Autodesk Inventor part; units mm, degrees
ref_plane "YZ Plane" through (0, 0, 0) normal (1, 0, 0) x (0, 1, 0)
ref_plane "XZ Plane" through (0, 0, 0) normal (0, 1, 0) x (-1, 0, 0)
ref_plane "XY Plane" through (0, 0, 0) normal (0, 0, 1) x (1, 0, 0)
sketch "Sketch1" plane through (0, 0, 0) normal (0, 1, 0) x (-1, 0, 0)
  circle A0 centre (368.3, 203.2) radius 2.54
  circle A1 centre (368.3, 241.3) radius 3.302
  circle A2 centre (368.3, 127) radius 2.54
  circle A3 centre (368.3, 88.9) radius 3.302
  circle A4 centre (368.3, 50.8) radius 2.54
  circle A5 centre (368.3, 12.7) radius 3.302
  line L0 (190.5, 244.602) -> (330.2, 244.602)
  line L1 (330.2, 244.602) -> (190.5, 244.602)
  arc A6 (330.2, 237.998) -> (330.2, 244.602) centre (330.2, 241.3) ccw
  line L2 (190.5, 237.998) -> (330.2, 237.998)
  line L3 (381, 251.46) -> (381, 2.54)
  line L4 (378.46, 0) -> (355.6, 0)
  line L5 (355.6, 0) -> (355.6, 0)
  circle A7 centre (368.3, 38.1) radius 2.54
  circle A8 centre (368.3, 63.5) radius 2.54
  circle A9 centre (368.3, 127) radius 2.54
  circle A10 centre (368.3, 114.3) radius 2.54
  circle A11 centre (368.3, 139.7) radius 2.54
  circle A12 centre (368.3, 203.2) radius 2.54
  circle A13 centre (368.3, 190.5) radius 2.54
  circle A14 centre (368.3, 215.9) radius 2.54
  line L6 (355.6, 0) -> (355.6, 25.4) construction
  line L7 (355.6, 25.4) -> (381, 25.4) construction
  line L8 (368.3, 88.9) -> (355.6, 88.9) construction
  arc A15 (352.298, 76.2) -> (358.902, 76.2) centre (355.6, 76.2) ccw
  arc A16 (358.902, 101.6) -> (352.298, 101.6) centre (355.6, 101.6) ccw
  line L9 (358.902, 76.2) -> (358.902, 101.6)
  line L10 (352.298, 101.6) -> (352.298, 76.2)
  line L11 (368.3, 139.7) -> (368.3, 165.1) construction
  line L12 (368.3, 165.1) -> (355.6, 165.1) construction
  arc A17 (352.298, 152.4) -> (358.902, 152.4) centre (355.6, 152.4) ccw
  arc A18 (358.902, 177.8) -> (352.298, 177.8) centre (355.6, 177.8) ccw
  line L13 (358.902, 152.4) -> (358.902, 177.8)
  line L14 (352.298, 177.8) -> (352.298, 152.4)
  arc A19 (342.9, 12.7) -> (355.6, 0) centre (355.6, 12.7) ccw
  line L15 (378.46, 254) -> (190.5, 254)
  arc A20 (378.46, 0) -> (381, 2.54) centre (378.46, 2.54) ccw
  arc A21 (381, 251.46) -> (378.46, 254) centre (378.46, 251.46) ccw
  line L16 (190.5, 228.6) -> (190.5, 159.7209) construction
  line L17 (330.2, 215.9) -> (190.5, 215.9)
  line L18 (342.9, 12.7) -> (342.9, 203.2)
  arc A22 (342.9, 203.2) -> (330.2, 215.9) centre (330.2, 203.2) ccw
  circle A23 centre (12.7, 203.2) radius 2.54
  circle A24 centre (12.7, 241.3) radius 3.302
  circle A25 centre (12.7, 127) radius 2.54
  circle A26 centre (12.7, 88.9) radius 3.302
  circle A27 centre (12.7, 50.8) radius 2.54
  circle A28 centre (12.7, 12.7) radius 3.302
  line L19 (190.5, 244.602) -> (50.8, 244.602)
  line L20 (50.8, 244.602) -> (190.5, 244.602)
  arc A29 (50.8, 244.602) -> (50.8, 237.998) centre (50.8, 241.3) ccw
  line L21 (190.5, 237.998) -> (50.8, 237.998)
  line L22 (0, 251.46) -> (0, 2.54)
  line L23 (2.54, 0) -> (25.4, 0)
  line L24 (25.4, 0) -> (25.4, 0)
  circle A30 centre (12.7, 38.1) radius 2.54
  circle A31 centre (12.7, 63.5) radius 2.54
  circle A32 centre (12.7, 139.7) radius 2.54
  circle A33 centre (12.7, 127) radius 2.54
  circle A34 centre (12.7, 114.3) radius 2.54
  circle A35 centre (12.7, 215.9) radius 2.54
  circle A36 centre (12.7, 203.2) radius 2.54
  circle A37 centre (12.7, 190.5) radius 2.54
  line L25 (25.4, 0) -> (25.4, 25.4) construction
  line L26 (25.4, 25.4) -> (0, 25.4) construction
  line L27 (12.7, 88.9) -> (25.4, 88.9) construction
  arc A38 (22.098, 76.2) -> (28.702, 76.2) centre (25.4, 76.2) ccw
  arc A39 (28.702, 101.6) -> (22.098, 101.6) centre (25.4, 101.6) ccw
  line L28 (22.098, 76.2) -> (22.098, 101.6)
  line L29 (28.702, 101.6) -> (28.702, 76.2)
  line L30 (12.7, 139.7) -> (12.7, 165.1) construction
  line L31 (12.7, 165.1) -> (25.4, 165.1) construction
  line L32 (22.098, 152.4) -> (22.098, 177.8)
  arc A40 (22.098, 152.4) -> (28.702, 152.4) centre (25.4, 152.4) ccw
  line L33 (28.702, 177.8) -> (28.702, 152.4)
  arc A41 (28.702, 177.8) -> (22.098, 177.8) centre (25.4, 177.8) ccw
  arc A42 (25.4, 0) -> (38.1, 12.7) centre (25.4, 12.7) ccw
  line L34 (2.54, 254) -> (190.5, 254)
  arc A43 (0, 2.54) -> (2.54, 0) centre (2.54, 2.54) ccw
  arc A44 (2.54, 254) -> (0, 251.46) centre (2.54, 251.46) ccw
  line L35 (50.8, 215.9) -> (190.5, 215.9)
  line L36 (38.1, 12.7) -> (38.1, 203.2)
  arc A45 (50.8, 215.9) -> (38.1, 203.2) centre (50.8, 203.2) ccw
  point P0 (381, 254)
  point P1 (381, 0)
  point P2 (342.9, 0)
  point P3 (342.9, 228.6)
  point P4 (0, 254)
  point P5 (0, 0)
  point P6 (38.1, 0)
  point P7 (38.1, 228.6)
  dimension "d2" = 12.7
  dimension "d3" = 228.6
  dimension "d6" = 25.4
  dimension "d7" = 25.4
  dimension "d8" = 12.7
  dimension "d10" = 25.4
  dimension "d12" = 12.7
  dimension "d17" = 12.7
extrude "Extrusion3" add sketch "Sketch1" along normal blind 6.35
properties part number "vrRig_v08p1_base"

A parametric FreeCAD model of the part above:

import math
import FreeCAD as App
import Part
import Sketcher
from FreeCAD import Vector
Q = App.Units.Quantity

doc = App.newDocument("Part")
params = doc.addObject("Spreadsheet::Sheet", "Params")
for row, (alias, value) in enumerate([
    ("sketch1_radius", "0.5 in"),
    ("sketch1_height", "1 in"),
    ("sketch1_diameter", "0.2 in"),
    ("sketch1_diameter2", "0.26 in"),
    ("sketch1_width", "11 in"),
    ("pad1_length", "0.25 in"),
], start=1):
    params.set(f"A{row}", alias)
    params.set(f"B{row}", "=" + value)
    params.setAlias(f"B{row}", alias)

body = doc.addObject("PartDesign::Body", "Body")

sketch1 = doc.addObject("Sketcher::SketchObject", "Sketch")
body.addObject(sketch1)
sketch1.AttachmentSupport = (doc.XZ_Plane, [""])
sketch1.MapMode = "FlatFace"
sketch1.addGeometry(Part.LineSegment(Vector(-381, 2.5, 0), Vector(-381, 251.5, 0)), False)
sketch1.addGeometry(Part.ArcOfCircle(Part.Circle(Vector(-378.5, 251.5, 0), Vector(0, 0, 1), 2.5), math.radians(90), math.radians(180)), False)
sketch1.addGeometry(Part.LineSegment(Vector(-378.5, 254, 0), Vector(-2.5, 254, 0)), False)
sketch1.addGeometry(Part.ArcOfCircle(Part.Circle(Vector(-2.5, 251.5, 0), Vector(0, 0, 1), 2.5), math.radians(0), math.radians(90)), False)
sketch1.addGeometry(Part.LineSegment(Vector(0, 251.5, 0), Vector(0, 2.5, 0)), False)
sketch1.addGeometry(Part.ArcOfCircle(Part.Circle(Vector(-2.5, 2.5, 0), Vector(0, 0, 1), 2.5), math.radians(-90), math.radians(0)), False)
sketch1.addGeometry(Part.LineSegment(Vector(-2.5, 0, 0), Vector(-25.4, 0, 0)), False)
sketch1.addGeometry(Part.ArcOfCircle(Part.Circle(Vector(-25.4, 12.7, 0), Vector(0, 0, 1), 12.7), math.radians(180), math.radians(270)), False)
sketch1.addGeometry(Part.LineSegment(Vector(-38.1, 12.7, 0), Vector(-38.1, 203.2, 0)), False)
sketch1.addGeometry(Part.ArcOfCircle(Part.Circle(Vector(-50.8, 203.2, 0), Vector(0, 0, 1), 12.7), math.radians(0), math.radians(90)), False)
sketch1.addGeometry(Part.LineSegment(Vector(-50.8, 215.9, 0), Vector(-330.2, 215.9, 0)), False)
sketch1.addGeometry(Part.ArcOfCircle(Part.Circle(Vector(-330.2, 203.2, 0), Vector(0, 0, 1), 12.7), math.radians(90), math.radians(180)), False)
sketch1.addGeometry(Part.LineSegment(Vector(-342.9, 203.2, 0), Vector(-342.9, 12.7, 0)), False)
sketch1.addGeometry(Part.ArcOfCircle(Part.Circle(Vector(-355.6, 12.7, 0), Vector(0, 0, 1), 12.7), math.radians(-90), math.radians(0)), False)
sketch1.addGeometry(Part.LineSegment(Vector(-355.6, 0, 0), Vector(-378.5, 0, 0)), False)
sketch1.addGeometry(Part.ArcOfCircle(Part.Circle(Vector(-378.5, 2.5, 0), Vector(0, 0, 1), 2.5), math.radians(180), math.radians(270)), False)
sketch1.addGeometry(Part.Circle(Vector(-12.7, 12.7, 0), Vector(0, 0, 1), 3.3), False)
sketch1.addGeometry(Part.Circle(Vector(-12.7, 38.1, 0), Vector(0, 0, 1), 2.5), False)
sketch1.addGeometry(Part.Circle(Vector(-12.7, 50.8, 0), Vector(0, 0, 1), 2.5), False)
sketch1.addGeometry(Part.Circle(Vector(-12.7, 63.5, 0), Vector(0, 0, 1), 2.5), False)
sketch1.addGeometry(Part.Circle(Vector(-12.7, 88.9, 0), Vector(0, 0, 1), 3.3), False)
sketch1.addGeometry(Part.ArcOfCircle(Part.Circle(Vector(-25.4, 76.2, 0), Vector(0, 0, 1), 3.3), math.radians(180), math.radians(360)), False)
sketch1.addGeometry(Part.LineSegment(Vector(-22.1, 76.2, 0), Vector(-22.1, 101.6, 0)), False)
sketch1.addGeometry(Part.ArcOfCircle(Part.Circle(Vector(-25.4, 101.6, 0), Vector(0, 0, 1), 3.3), math.radians(0), math.radians(180)), False)
sketch1.addGeometry(Part.LineSegment(Vector(-28.7, 101.6, 0), Vector(-28.7, 76.2, 0)), False)
sketch1.addGeometry(Part.Circle(Vector(-12.7, 114.3, 0), Vector(0, 0, 1), 2.5), False)
sketch1.addGeometry(Part.Circle(Vector(-368.3, 12.7, 0), Vector(0, 0, 1), 3.3), False)
sketch1.addGeometry(Part.Circle(Vector(-368.3, 38.1, 0), Vector(0, 0, 1), 2.5), False)
sketch1.addGeometry(Part.Circle(Vector(-368.3, 50.8, 0), Vector(0, 0, 1), 2.5), False)
sketch1.addGeometry(Part.Circle(Vector(-368.3, 63.5, 0), Vector(0, 0, 1), 2.5), False)
sketch1.addGeometry(Part.ArcOfCircle(Part.Circle(Vector(-355.6, 76.2, 0), Vector(0, 0, 1), 3.3), math.radians(180), math.radians(360)), False)
sketch1.addGeometry(Part.LineSegment(Vector(-352.3, 76.2, 0), Vector(-352.3, 101.6, 0)), False)
sketch1.addGeometry(Part.ArcOfCircle(Part.Circle(Vector(-355.6, 101.6, 0), Vector(0, 0, 1), 3.3), math.radians(0), math.radians(180)), False)
sketch1.addGeometry(Part.LineSegment(Vector(-358.9, 101.6, 0), Vector(-358.9, 76.2, 0)), False)
sketch1.addGeometry(Part.Circle(Vector(-368.3, 88.9, 0), Vector(0, 0, 1), 3.3), False)
sketch1.addGeometry(Part.Circle(Vector(-368.3, 114.3, 0), Vector(0, 0, 1), 2.5), False)
sketch1.addGeometry(Part.Circle(Vector(-12.7, 127, 0), Vector(0, 0, 1), 2.5), False)
sketch1.addGeometry(Part.Circle(Vector(-12.7, 139.7, 0), Vector(0, 0, 1), 2.5), False)
sketch1.addGeometry(Part.ArcOfCircle(Part.Circle(Vector(-25.4, 152.4, 0), Vector(0, 0, 1), 3.3), math.radians(180), math.radians(360)), False)
sketch1.addGeometry(Part.LineSegment(Vector(-22.1, 152.4, 0), Vector(-22.1, 177.8, 0)), False)
sketch1.addGeometry(Part.ArcOfCircle(Part.Circle(Vector(-25.4, 177.8, 0), Vector(0, 0, 1), 3.3), math.radians(0), math.radians(180)), False)
sketch1.addGeometry(Part.LineSegment(Vector(-28.7, 177.8, 0), Vector(-28.7, 152.4, 0)), False)
sketch1.addGeometry(Part.Circle(Vector(-12.7, 190.5, 0), Vector(0, 0, 1), 2.5), False)
sketch1.addGeometry(Part.Circle(Vector(-12.7, 203.2, 0), Vector(0, 0, 1), 2.5), False)
sketch1.addGeometry(Part.Circle(Vector(-12.7, 215.9, 0), Vector(0, 0, 1), 2.5), False)
sketch1.addGeometry(Part.Circle(Vector(-12.7, 241.3, 0), Vector(0, 0, 1), 3.3), False)
sketch1.addGeometry(Part.Circle(Vector(-368.3, 127, 0), Vector(0, 0, 1), 2.5), False)
sketch1.addGeometry(Part.Circle(Vector(-368.3, 139.7, 0), Vector(0, 0, 1), 2.5), False)
sketch1.addGeometry(Part.ArcOfCircle(Part.Circle(Vector(-355.6, 152.4, 0), Vector(0, 0, 1), 3.3), math.radians(180), math.radians(360)), False)
sketch1.addGeometry(Part.LineSegment(Vector(-352.3, 152.4, 0), Vector(-352.3, 177.8, 0)), False)
sketch1.addGeometry(Part.ArcOfCircle(Part.Circle(Vector(-355.6, 177.8, 0), Vector(0, 0, 1), 3.3), math.radians(0), math.radians(180)), False)
sketch1.addGeometry(Part.LineSegment(Vector(-358.9, 177.8, 0), Vector(-358.9, 152.4, 0)), False)
sketch1.addGeometry(Part.Circle(Vector(-368.3, 190.5, 0), Vector(0, 0, 1), 2.5), False)
sketch1.addGeometry(Part.LineSegment(Vector(-50.8, 244.6, 0), Vector(-330.2, 244.6, 0)), False)
sketch1.addGeometry(Part.ArcOfCircle(Part.Circle(Vector(-330.2, 241.3, 0), Vector(0, 0, 1), 3.3), math.radians(90), math.radians(270)), False)
sketch1.addGeometry(Part.LineSegment(Vector(-330.2, 238, 0), Vector(-50.8, 238, 0)), False)
sketch1.addGeometry(Part.ArcOfCircle(Part.Circle(Vector(-50.8, 241.3, 0), Vector(0, 0, 1), 3.3), math.radians(-90), math.radians(90)), False)
sketch1.addGeometry(Part.Circle(Vector(-368.3, 203.2, 0), Vector(0, 0, 1), 2.5), False)
sketch1.addGeometry(Part.Circle(Vector(-368.3, 215.9, 0), Vector(0, 0, 1), 2.5), False)
sketch1.addGeometry(Part.Circle(Vector(-368.3, 241.3, 0), Vector(0, 0, 1), 3.3), False)
sketch1.addConstraint(Sketcher.Constraint("Tangent", 0, 2, 1, 2))
sketch1.addConstraint(Sketcher.Constraint("Tangent", 1, 1, 2, 1))
sketch1.addConstraint(Sketcher.Constraint("Tangent", 2, 2, 3, 2))
sketch1.addConstraint(Sketcher.Constraint("Tangent", 3, 1, 4, 1))
sketch1.addConstraint(Sketcher.Constraint("Tangent", 4, 2, 5, 2))
sketch1.addConstraint(Sketcher.Constraint("Tangent", 5, 1, 6, 1))
sketch1.addConstraint(Sketcher.Constraint("Tangent", 6, 2, 7, 2))
sketch1.addConstraint(Sketcher.Constraint("Tangent", 7, 1, 8, 1))
sketch1.addConstraint(Sketcher.Constraint("Tangent", 8, 2, 9, 1))
sketch1.addConstraint(Sketcher.Constraint("Tangent", 9, 2, 10, 1))
sketch1.addConstraint(Sketcher.Constraint("Tangent", 10, 2, 11, 1))
sketch1.addConstraint(Sketcher.Constraint("Tangent", 11, 2, 12, 1))
sketch1.addConstraint(Sketcher.Constraint("Tangent", 12, 2, 13, 2))
sketch1.addConstraint(Sketcher.Constraint("Tangent", 13, 1, 14, 1))
sketch1.addConstraint(Sketcher.Constraint("Tangent", 14, 2, 15, 2))
sketch1.addConstraint(Sketcher.Constraint("Tangent", 15, 1, 0, 1))
sketch1.addConstraint(Sketcher.Constraint("Tangent", 21, 2, 22, 1))
sketch1.addConstraint(Sketcher.Constraint("Tangent", 22, 2, 23, 1))
sketch1.addConstraint(Sketcher.Constraint("Tangent", 23, 2, 24, 1))
sketch1.addConstraint(Sketcher.Constraint("Tangent", 24, 2, 21, 1))
sketch1.addConstraint(Sketcher.Constraint("Tangent", 30, 2, 31, 1))
sketch1.addConstraint(Sketcher.Constraint("Tangent", 31, 2, 32, 1))
sketch1.addConstraint(Sketcher.Constraint("Tangent", 32, 2, 33, 1))
sketch1.addConstraint(Sketcher.Constraint("Tangent", 33, 2, 30, 1))
sketch1.addConstraint(Sketcher.Constraint("Tangent", 38, 2, 39, 1))
sketch1.addConstraint(Sketcher.Constraint("Tangent", 39, 2, 40, 1))
sketch1.addConstraint(Sketcher.Constraint("Tangent", 40, 2, 41, 1))
sketch1.addConstraint(Sketcher.Constraint("Tangent", 41, 2, 38, 1))
sketch1.addConstraint(Sketcher.Constraint("Tangent", 48, 2, 49, 1))
sketch1.addConstraint(Sketcher.Constraint("Tangent", 49, 2, 50, 1))
sketch1.addConstraint(Sketcher.Constraint("Tangent", 50, 2, 51, 1))
sketch1.addConstraint(Sketcher.Constraint("Tangent", 51, 2, 48, 1))
sketch1.addConstraint(Sketcher.Constraint("Tangent", 53, 2, 54, 1))
sketch1.addConstraint(Sketcher.Constraint("Tangent", 54, 2, 55, 1))
sketch1.addConstraint(Sketcher.Constraint("Tangent", 55, 2, 56, 1))
sketch1.addConstraint(Sketcher.Constraint("Tangent", 56, 2, 53, 1))
sketch1.addConstraint(Sketcher.Constraint("Vertical", 0))
sketch1.addConstraint(Sketcher.Constraint("Horizontal", 2))
sketch1.addConstraint(Sketcher.Constraint("Vertical", 4))
sketch1.addConstraint(Sketcher.Constraint("Horizontal", 6))
sketch1.addConstraint(Sketcher.Constraint("Vertical", 8))
sketch1.addConstraint(Sketcher.Constraint("Horizontal", 10))
sketch1.addConstraint(Sketcher.Constraint("Vertical", 12))
sketch1.addConstraint(Sketcher.Constraint("Horizontal", 14))
sketch1.addConstraint(Sketcher.Constraint("Vertical", 22))
sketch1.addConstraint(Sketcher.Constraint("Vertical", 24))
sketch1.addConstraint(Sketcher.Constraint("Vertical", 31))
sketch1.addConstraint(Sketcher.Constraint("Vertical", 33))
sketch1.addConstraint(Sketcher.Constraint("Vertical", 39))
sketch1.addConstraint(Sketcher.Constraint("Vertical", 41))
sketch1.addConstraint(Sketcher.Constraint("Vertical", 49))
sketch1.addConstraint(Sketcher.Constraint("Vertical", 51))
sketch1.addConstraint(Sketcher.Constraint("Horizontal", 53))
sketch1.addConstraint(Sketcher.Constraint("Horizontal", 55))
sketch1.addConstraint(Sketcher.Constraint("Equal", 1, 3))
sketch1.addConstraint(Sketcher.Constraint("Equal", 3, 5))
sketch1.addConstraint(Sketcher.Constraint("Equal", 7, 9))
sketch1.addConstraint(Sketcher.Constraint("Equal", 9, 11))
sketch1.addConstraint(Sketcher.Constraint("Equal", 11, 13))
sketch1.addConstraint(Sketcher.Constraint("Equal", 5, 15))
sketch1.addConstraint(Sketcher.Constraint("Equal", 15, 17))
sketch1.addConstraint(Sketcher.Constraint("Equal", 17, 18))
sketch1.addConstraint(Sketcher.Constraint("Equal", 18, 19))
sketch1.addConstraint(Sketcher.Constraint("Equal", 16, 20))
sketch1.addConstraint(Sketcher.Constraint("Equal", 20, 21))
sketch1.addConstraint(Sketcher.Constraint("Equal", 19, 25))
sketch1.addConstraint(Sketcher.Constraint("Equal", 23, 26))
sketch1.addConstraint(Sketcher.Constraint("Equal", 25, 27))
sketch1.addConstraint(Sketcher.Constraint("Equal", 27, 28))
sketch1.addConstraint(Sketcher.Constraint("Equal", 28, 29))
sketch1.addConstraint(Sketcher.Constraint("Equal", 26, 30))
sketch1.addConstraint(Sketcher.Constraint("Equal", 32, 34))
sketch1.addConstraint(Sketcher.Constraint("Equal", 29, 35))
sketch1.addConstraint(Sketcher.Constraint("Equal", 35, 36))
sketch1.addConstraint(Sketcher.Constraint("Equal", 36, 37))
sketch1.addConstraint(Sketcher.Constraint("Equal", 34, 38))
sketch1.addConstraint(Sketcher.Constraint("Equal", 37, 42))
sketch1.addConstraint(Sketcher.Constraint("Equal", 42, 43))
sketch1.addConstraint(Sketcher.Constraint("Equal", 43, 44))
sketch1.addConstraint(Sketcher.Constraint("Equal", 40, 45))
sketch1.addConstraint(Sketcher.Constraint("Equal", 44, 46))
sketch1.addConstraint(Sketcher.Constraint("Equal", 46, 47))
sketch1.addConstraint(Sketcher.Constraint("Equal", 45, 48))
sketch1.addConstraint(Sketcher.Constraint("Equal", 47, 52))
sketch1.addConstraint(Sketcher.Constraint("Equal", 50, 54))
sketch1.addConstraint(Sketcher.Constraint("Equal", 52, 57))
sketch1.addConstraint(Sketcher.Constraint("Equal", 57, 58))
sketch1.addConstraint(Sketcher.Constraint("Equal", 56, 59))
sketch1.addConstraint(Sketcher.Constraint("PointOnObject", 3, 1, -2))
sketch1.addConstraint(Sketcher.Constraint("PointOnObject", 5, 1, -1))
sketch1.addConstraint(Sketcher.Constraint("PointOnObject", 13, 1, -1))
sketch1.addConstraint(Sketcher.Constraint("Horizontal", 13, 3, 16, 3))
sketch1.addConstraint(Sketcher.Constraint("Horizontal", 16, 3, 26, 3))
sketch1.addConstraint(Sketcher.Constraint("Horizontal", 17, 3, 27, 3))
sketch1.addConstraint(Sketcher.Constraint("Horizontal", 18, 3, 28, 3))
sketch1.addConstraint(Sketcher.Constraint("Horizontal", 19, 3, 29, 3))
sketch1.addConstraint(Sketcher.Constraint("Horizontal", 21, 3, 30, 3))
sketch1.addConstraint(Sketcher.Constraint("Horizontal", 23, 3, 32, 3))
sketch1.addConstraint(Sketcher.Constraint("Horizontal", 20, 3, 34, 3))
sketch1.addConstraint(Sketcher.Constraint("Horizontal", 25, 3, 35, 3))
sketch1.addConstraint(Sketcher.Constraint("Horizontal", 11, 3, 43, 3))
sketch1.addConstraint(Sketcher.Constraint("Horizontal", 36, 3, 46, 3))
sketch1.addConstraint(Sketcher.Constraint("Horizontal", 37, 3, 47, 3))
sketch1.addConstraint(Sketcher.Constraint("Horizontal", 38, 3, 48, 3))
sketch1.addConstraint(Sketcher.Constraint("Horizontal", 40, 3, 50, 3))
sketch1.addConstraint(Sketcher.Constraint("Horizontal", 42, 3, 52, 3))
sketch1.addConstraint(Sketcher.Constraint("Horizontal", 45, 3, 54, 3))
sketch1.addConstraint(Sketcher.Constraint("Horizontal", 43, 3, 57, 3))
sketch1.addConstraint(Sketcher.Constraint("Horizontal", 44, 3, 58, 3))
sketch1.addConstraint(Sketcher.Constraint("Horizontal", 56, 3, 59, 3))
sketch1.addConstraint(Sketcher.Constraint("Horizontal", 58, 3, 9, 2))
sketch1.addConstraint(Sketcher.Constraint("Vertical", 16, 3, 17, 3))
sketch1.addConstraint(Sketcher.Constraint("Vertical", 17, 3, 18, 3))
sketch1.addConstraint(Sketcher.Constraint("Vertical", 18, 3, 19, 3))
sketch1.addConstraint(Sketcher.Constraint("Vertical", 19, 3, 20, 3))
sketch1.addConstraint(Sketcher.Constraint("Vertical", 7, 3, 21, 3))
sketch1.addConstraint(Sketcher.Constraint("Vertical", 20, 3, 25, 3))
sketch1.addConstraint(Sketcher.Constraint("Vertical", 26, 3, 27, 3))
sketch1.addConstraint(Sketcher.Constraint("Vertical", 27, 3, 28, 3))
sketch1.addConstraint(Sketcher.Constraint("Vertical", 28, 3, 29, 3))
sketch1.addConstraint(Sketcher.Constraint("Vertical", 13, 3, 30, 3))
sketch1.addConstraint(Sketcher.Constraint("Vertical", 29, 3, 34, 3))
sketch1.addConstraint(Sketcher.Constraint("Vertical", 34, 3, 35, 3))
sketch1.addConstraint(Sketcher.Constraint("Vertical", 25, 3, 36, 3))
sketch1.addConstraint(Sketcher.Constraint("Vertical", 36, 3, 37, 3))
sketch1.addConstraint(Sketcher.Constraint("Vertical", 23, 3, 38, 3))
sketch1.addConstraint(Sketcher.Constraint("Vertical", 37, 3, 42, 3))
sketch1.addConstraint(Sketcher.Constraint("Vertical", 42, 3, 43, 3))
sketch1.addConstraint(Sketcher.Constraint("Vertical", 43, 3, 44, 3))
sketch1.addConstraint(Sketcher.Constraint("Vertical", 44, 3, 45, 3))
sketch1.addConstraint(Sketcher.Constraint("Vertical", 35, 3, 46, 3))
sketch1.addConstraint(Sketcher.Constraint("Vertical", 46, 3, 47, 3))
sketch1.addConstraint(Sketcher.Constraint("Vertical", 32, 3, 48, 3))
sketch1.addConstraint(Sketcher.Constraint("Vertical", 47, 3, 52, 3))
sketch1.addConstraint(Sketcher.Constraint("Vertical", 11, 3, 54, 3))
sketch1.addConstraint(Sketcher.Constraint("Vertical", 9, 3, 56, 3))
sketch1.addConstraint(Sketcher.Constraint("Vertical", 52, 3, 57, 3))
sketch1.addConstraint(Sketcher.Constraint("Vertical", 57, 3, 58, 3))
sketch1.addConstraint(Sketcher.Constraint("Vertical", 58, 3, 59, 3))
sketch1.addConstraint(Sketcher.Constraint("Equal", 6, 14))
sketch1.addConstraint(Sketcher.Constraint("Equal", 33, 39))
sketch1.addConstraint(Sketcher.Constraint("Radius", 7, Q("0.5 in")))
sketch1.addConstraint(Sketcher.Constraint("DistanceY", 22, 1, 22, 2, Q("1 in")))
sketch1.addConstraint(Sketcher.Constraint("DistanceX", 7, 3, -1, 1, Q("1 in")))
sketch1.addConstraint(Sketcher.Constraint("Diameter", 17, Q("0.2 in")))
sketch1.addConstraint(Sketcher.Constraint("DistanceX", 16, 3, -1, 1, Q("0.5 in")))
sketch1.addConstraint(Sketcher.Constraint("Diameter", 16, Q("0.26 in")))
sketch1.addConstraint(Sketcher.Constraint("DistanceX", 10, 2, 10, 1, Q("11 in")))
sketch1.addConstraint(Sketcher.Constraint("DistanceY", 0, 1, 0, 2, Q("9.8 in")))
sketch1.addConstraint(Sketcher.Constraint("DistanceY", 8, 1, 8, 2, Q("7.5 in")))
sketch1.addConstraint(Sketcher.Constraint("DistanceY", -1, 1, 18, 3, Q("2 in")))
sketch1.addConstraint(Sketcher.Constraint("DistanceY", -1, 1, 21, 3, Q("3 in")))
sketch1.addConstraint(Sketcher.Constraint("DistanceY", -1, 1, 36, 3, Q("5 in")))
sketch1.addConstraint(Sketcher.Constraint("DistanceY", -1, 1, 38, 3, Q("6 in")))
sketch1.addConstraint(Sketcher.Constraint("DistanceY", -1, 1, 17, 3, Q("1.5 in")))
sketch1.addConstraint(Sketcher.Constraint("DistanceY", -1, 1, 19, 3, Q("2.5 in")))
sketch1.addConstraint(Sketcher.Constraint("DistanceY", -1, 1, 20, 3, Q("3.5 in")))
sketch1.addConstraint(Sketcher.Constraint("DistanceY", -1, 1, 25, 3, Q("4.5 in")))
sketch1.addConstraint(Sketcher.Constraint("DistanceX", 26, 3, -1, 1, Q("14.5 in")))
sketch1.addConstraint(Sketcher.Constraint("DistanceY", -1, 1, 37, 3, Q("5.5 in")))
sketch1.addConstraint(Sketcher.Constraint("DistanceY", -1, 1, 42, 3, Q("7.5 in")))
sketch1.addConstraint(Sketcher.Constraint("DistanceY", -1, 1, 45, 3, Q("9.5 in")))
sketch1.setExpression("Constraints[141]", "Params.sketch1_radius")
sketch1.setExpression("Constraints[142]", "Params.sketch1_height")
sketch1.setExpression("Constraints[144]", "Params.sketch1_diameter")
sketch1.setExpression("Constraints[146]", "Params.sketch1_diameter2")
sketch1.setExpression("Constraints[147]", "Params.sketch1_width")
pad1 = doc.addObject("PartDesign::Pad", "Pad")
body.addObject(pad1)
pad1.Profile = sketch1
pad1.setExpression("Length", "Params.pad1_length")
pad1.Reversed = True

doc.recompute()
